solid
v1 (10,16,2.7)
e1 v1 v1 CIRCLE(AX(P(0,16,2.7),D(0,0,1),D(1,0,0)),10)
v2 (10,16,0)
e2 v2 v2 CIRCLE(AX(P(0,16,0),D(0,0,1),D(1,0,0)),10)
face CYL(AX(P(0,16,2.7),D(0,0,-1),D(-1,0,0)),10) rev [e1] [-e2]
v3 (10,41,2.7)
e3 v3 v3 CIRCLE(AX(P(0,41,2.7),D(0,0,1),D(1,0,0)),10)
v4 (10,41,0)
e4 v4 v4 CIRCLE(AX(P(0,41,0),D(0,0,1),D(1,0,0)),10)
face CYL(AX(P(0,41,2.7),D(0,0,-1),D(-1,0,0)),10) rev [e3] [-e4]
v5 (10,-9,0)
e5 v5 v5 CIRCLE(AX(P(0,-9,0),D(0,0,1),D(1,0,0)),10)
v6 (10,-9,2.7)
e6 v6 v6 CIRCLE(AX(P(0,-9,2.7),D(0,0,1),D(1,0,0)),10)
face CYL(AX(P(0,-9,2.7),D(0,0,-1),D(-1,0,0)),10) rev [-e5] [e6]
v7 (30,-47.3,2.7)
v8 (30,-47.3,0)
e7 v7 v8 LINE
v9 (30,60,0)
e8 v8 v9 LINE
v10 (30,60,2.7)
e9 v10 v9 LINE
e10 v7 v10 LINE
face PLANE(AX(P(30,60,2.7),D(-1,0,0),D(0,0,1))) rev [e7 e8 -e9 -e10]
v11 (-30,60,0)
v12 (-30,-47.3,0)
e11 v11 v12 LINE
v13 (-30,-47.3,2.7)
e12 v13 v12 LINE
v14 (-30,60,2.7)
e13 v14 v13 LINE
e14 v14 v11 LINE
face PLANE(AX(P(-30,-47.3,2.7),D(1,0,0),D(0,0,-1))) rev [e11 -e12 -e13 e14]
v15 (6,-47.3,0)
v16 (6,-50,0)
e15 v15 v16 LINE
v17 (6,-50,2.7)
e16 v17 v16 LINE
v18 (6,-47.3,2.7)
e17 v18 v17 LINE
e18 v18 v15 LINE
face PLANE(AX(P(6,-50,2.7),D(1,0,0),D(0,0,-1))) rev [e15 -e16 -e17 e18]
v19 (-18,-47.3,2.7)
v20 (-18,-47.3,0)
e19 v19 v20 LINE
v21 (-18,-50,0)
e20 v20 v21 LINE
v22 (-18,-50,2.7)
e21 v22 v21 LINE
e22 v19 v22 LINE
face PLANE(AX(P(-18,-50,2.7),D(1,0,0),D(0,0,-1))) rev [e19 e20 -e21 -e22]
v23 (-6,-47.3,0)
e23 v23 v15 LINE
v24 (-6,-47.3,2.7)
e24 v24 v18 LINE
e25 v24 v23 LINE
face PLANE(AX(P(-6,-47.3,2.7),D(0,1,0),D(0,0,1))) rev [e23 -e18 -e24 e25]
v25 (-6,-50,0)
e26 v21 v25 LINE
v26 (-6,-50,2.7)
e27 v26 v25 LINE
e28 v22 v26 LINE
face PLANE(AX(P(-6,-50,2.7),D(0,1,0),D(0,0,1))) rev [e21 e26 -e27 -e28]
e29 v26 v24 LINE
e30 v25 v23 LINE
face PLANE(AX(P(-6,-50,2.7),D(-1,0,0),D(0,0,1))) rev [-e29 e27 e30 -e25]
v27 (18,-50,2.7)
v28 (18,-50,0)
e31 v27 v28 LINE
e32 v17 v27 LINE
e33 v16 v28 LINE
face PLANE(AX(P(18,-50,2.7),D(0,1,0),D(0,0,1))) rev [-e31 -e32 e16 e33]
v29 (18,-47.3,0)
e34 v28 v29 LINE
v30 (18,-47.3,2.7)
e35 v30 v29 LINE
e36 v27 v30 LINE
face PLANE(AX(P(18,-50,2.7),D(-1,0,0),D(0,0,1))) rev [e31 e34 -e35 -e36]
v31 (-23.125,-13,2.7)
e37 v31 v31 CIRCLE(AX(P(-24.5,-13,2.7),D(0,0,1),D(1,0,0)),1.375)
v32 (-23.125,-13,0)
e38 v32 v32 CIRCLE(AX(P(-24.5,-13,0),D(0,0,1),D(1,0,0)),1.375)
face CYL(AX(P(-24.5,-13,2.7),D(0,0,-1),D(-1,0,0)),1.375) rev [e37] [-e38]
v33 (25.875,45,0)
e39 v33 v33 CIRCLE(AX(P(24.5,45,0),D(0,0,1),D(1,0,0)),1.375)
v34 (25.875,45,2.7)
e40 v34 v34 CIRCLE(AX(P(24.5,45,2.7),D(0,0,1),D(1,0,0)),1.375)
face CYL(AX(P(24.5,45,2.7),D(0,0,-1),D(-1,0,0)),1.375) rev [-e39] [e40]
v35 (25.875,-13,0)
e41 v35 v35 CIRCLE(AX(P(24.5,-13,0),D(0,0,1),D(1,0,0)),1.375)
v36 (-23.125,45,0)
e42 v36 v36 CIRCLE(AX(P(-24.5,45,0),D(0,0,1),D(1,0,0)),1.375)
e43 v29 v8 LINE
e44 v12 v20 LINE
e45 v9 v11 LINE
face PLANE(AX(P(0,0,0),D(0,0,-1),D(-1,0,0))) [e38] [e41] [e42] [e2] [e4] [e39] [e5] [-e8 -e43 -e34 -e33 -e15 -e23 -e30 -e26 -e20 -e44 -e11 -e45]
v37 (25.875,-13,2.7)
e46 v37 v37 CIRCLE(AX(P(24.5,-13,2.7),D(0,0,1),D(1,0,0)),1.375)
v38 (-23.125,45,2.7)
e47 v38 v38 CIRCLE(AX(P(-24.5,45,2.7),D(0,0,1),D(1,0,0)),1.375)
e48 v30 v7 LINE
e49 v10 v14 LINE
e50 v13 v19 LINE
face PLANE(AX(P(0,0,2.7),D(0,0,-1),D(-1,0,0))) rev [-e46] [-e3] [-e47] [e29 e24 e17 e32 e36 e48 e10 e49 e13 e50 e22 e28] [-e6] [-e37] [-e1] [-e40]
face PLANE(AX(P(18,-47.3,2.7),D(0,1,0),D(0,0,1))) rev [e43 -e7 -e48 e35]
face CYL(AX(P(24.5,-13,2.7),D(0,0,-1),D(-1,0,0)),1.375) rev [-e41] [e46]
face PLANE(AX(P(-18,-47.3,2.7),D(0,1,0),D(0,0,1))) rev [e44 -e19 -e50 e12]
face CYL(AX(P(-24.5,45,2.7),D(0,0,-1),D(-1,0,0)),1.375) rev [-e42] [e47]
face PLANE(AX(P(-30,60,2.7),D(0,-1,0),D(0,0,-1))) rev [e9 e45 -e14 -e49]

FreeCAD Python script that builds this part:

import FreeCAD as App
import Part
import Sketcher

V = App.Vector

doc = App.newDocument("Part")
body = doc.addObject("PartDesign::Body", "Body")

sketch1 = doc.addObject("Sketcher::SketchObject", "Sketch")
body.addObject(sketch1)
sketch1.AttachmentSupport = (doc.XY_Plane, [""])
sketch1.MapMode = "FlatFace"
sketch1.addGeometry([
    Part.LineSegment(V(30, -47.3, 0), V(30, 60, 0)),
    Part.LineSegment(V(30, 60, 0), V(-30, 60, 0)),
    Part.LineSegment(V(-30, 60, 0), V(-30, -47.3, 0)),
    Part.LineSegment(V(-30, -47.3, 0), V(-18, -47.3, 0)),
    Part.LineSegment(V(-18, -47.3, 0), V(-18, -50, 0)),
    Part.LineSegment(V(-18, -50, 0), V(-6, -50, 0)),
    Part.LineSegment(V(-6, -50, 0), V(-6, -47.3, 0)),
    Part.LineSegment(V(-6, -47.3, 0), V(6, -47.3, 0)),
    Part.LineSegment(V(6, -47.3, 0), V(6, -50, 0)),
    Part.LineSegment(V(6, -50, 0), V(18, -50, 0)),
    Part.LineSegment(V(18, -50, 0), V(18, -47.3, 0)),
    Part.LineSegment(V(18, -47.3, 0), V(30, -47.3, 0)),
    Part.Circle(V(-24.5, -13, 0), V(0, 0, 1), 1.4),
    Part.Circle(V(0, -9, 0), V(0, 0, 1), 10),
    Part.Circle(V(24.5, -13, 0), V(0, 0, 1), 1.4),
    Part.Circle(V(-24.5, 45, 0), V(0, 0, 1), 1.4),
    Part.Circle(V(0, 16, 0), V(0, 0, 1), 10),
    Part.Circle(V(0, 41, 0), V(0, 0, 1), 10),
    Part.Circle(V(24.5, 45, 0), V(0, 0, 1), 1.4),
], False)
sketch1.addConstraint([
    Sketcher.Constraint("Coincident", 0, 2, 1, 1),
    Sketcher.Constraint("Coincident", 1, 2, 2, 1),
    Sketcher.Constraint("Coincident", 2, 2, 3, 1),
    Sketcher.Constraint("Coincident", 3, 2, 4, 1),
    Sketcher.Constraint("Coincident", 4, 2, 5, 1),
    Sketcher.Constraint("Coincident", 5, 2, 6, 1),
    Sketcher.Constraint("Coincident", 6, 2, 7, 1),
    Sketcher.Constraint("Coincident", 7, 2, 8, 1),
    Sketcher.Constraint("Coincident", 8, 2, 9, 1),
    Sketcher.Constraint("Coincident", 9, 2, 10, 1),
    Sketcher.Constraint("Coincident", 10, 2, 11, 1),
    Sketcher.Constraint("Coincident", 11, 2, 0, 1),
    Sketcher.Constraint("Vertical", 0),
    Sketcher.Constraint("Horizontal", 1),
    Sketcher.Constraint("Vertical", 2),
    Sketcher.Constraint("Horizontal", 3),
    Sketcher.Constraint("Vertical", 4),
    Sketcher.Constraint("Horizontal", 5),
    Sketcher.Constraint("Vertical", 6),
    Sketcher.Constraint("Horizontal", 7),
    Sketcher.Constraint("Vertical", 8),
    Sketcher.Constraint("Horizontal", 9),
    Sketcher.Constraint("Vertical", 10),
    Sketcher.Constraint("Horizontal", 11),
    Sketcher.Constraint("Equal", 12, 14),
    Sketcher.Constraint("Equal", 14, 15),
    Sketcher.Constraint("Equal", 13, 16),
    Sketcher.Constraint("Equal", 16, 17),
    Sketcher.Constraint("Equal", 15, 18),
    Sketcher.Constraint("Symmetric", 12, 3, 14, 3, -2),
    Sketcher.Constraint("Symmetric", 15, 3, 18, 3, -2),
    Sketcher.Constraint("Symmetric", 5, 2, 8, 2, -2),
    Sketcher.Constraint("Symmetric", 3, 2, 10, 2, -2),
    Sketcher.Constraint("PointOnObject", 13, 3, -2),
    Sketcher.Constraint("PointOnObject", 16, 3, -2),
    Sketcher.Constraint("PointOnObject", 17, 3, -2),
    Sketcher.Constraint("Horizontal", 3, 2, 6, 2),
    Sketcher.Constraint("Vertical", 12, 3, 15, 3),
    Sketcher.Constraint("Equal", 3, 5),
    Sketcher.Constraint("Equal", 5, 7),
    Sketcher.Constraint("Equal", 9, 11),
    Sketcher.Constraint("Diameter", 13, 20.0),
    Sketcher.Constraint("Diameter", 12, 2.75),
    Sketcher.Constraint("DistanceX", 1, 2, 1, 1, 60.0),
    Sketcher.Constraint("DistanceY", 0, 1, 0, 2, 107.3),
    Sketcher.Constraint("DistanceY", 4, 2, 4, 1, 2.7),
    Sketcher.Constraint("DistanceY", 12, 3, -1, 1, 13.0),
    Sketcher.Constraint("DistanceY", 13, 3, -1, 1, 9.0),
    Sketcher.Constraint("DistanceY", -1, 1, 15, 3, 45.0),
    Sketcher.Constraint("DistanceY", -1, 1, 16, 3, 16.0),
    Sketcher.Constraint("DistanceY", -1, 1, 17, 3, 41.0),
    Sketcher.Constraint("DistanceY", -1, 1, 0, 2, 60.0),
    Sketcher.Constraint("DistanceX", 12, 3, 14, 3, 49.0),
])
pad1 = doc.addObject("PartDesign::Pad", "Pad")
body.addObject(pad1)
pad1.Profile = sketch1
pad1.Length = 2.7

doc.recompute()
